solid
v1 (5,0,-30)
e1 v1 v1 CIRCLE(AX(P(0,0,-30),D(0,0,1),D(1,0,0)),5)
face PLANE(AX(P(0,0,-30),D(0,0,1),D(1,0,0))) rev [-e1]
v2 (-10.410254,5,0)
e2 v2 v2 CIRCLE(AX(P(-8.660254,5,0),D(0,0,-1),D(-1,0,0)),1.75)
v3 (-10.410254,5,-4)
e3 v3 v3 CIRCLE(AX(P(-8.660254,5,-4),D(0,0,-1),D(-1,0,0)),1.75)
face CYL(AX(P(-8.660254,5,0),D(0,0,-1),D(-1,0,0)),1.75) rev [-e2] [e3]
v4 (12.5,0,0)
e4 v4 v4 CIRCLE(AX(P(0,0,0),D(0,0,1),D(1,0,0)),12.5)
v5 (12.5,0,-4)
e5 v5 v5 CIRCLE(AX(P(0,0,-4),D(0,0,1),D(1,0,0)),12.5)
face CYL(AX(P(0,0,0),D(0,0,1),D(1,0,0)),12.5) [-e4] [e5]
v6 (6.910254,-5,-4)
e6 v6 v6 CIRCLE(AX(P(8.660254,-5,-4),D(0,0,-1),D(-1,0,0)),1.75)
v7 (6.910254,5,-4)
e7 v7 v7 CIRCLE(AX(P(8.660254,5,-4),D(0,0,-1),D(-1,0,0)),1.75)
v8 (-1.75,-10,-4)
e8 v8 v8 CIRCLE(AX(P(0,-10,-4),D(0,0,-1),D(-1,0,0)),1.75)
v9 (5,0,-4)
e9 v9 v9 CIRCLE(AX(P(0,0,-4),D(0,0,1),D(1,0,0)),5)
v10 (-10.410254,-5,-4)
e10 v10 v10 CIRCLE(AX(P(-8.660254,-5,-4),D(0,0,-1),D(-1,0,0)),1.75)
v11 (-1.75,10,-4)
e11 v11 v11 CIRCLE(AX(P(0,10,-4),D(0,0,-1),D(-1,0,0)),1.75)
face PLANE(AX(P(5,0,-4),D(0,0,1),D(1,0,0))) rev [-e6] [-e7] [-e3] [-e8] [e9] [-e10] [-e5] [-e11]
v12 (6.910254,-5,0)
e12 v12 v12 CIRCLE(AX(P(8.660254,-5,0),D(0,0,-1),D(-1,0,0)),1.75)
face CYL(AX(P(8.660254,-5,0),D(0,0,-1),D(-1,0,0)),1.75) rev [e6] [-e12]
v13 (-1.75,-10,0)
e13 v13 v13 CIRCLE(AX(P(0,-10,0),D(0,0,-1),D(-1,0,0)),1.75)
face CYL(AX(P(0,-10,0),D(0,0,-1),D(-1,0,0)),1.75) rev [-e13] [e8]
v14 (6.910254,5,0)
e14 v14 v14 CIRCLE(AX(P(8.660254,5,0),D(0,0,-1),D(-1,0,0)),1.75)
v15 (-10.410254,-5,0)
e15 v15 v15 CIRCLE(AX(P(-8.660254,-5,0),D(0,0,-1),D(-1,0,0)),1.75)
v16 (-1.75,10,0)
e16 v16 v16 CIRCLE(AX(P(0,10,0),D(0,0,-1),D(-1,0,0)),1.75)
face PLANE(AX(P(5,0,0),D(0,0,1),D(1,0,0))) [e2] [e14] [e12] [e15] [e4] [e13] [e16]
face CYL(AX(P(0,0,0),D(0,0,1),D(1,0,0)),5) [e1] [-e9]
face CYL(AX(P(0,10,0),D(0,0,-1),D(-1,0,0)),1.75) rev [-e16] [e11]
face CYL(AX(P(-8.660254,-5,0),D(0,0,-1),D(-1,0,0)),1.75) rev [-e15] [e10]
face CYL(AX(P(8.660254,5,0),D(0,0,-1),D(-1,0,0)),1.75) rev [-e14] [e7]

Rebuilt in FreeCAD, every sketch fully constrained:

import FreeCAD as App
import Part
import Sketcher
from FreeCAD import Vector
Q = App.Units.Quantity


def add_polygon(sketch, points):
    """Adds a closed chain of lines whose ends are joined by coincident constraints."""
    first, n = sketch.GeometryCount, len(points)
    for a, b in zip(points, points[1:] + points[:1]):
        sketch.addGeometry(Part.LineSegment(App.Vector(*a, 0), App.Vector(*b, 0)), False)
    for i in range(n):
        sketch.addConstraint(Sketcher.Constraint("Coincident", first + i, 2, first + (i + 1) % n, 1))

doc = App.newDocument("Part")
body = doc.addObject("PartDesign::Body", "Body")

sketch1 = body.newObject("Sketcher::SketchObject", "Sketch")
sketch1.AttachmentSupport = (doc.getObject("XZ_Plane"), [""])
sketch1.MapMode = "FlatFace"
add_polygon(sketch1, [(0, -30), (0, 0), (12.5, 0), (12.5, -4), (5, -4), (5, -30)])
sketch1.addConstraint(Sketcher.Constraint("Vertical", 0))
sketch1.addConstraint(Sketcher.Constraint("Horizontal", 1))
sketch1.addConstraint(Sketcher.Constraint("Vertical", 2))
sketch1.addConstraint(Sketcher.Constraint("Horizontal", 3))
sketch1.addConstraint(Sketcher.Constraint("Vertical", 4))
sketch1.addConstraint(Sketcher.Constraint("Horizontal", 5))
sketch1.addConstraint(Sketcher.Constraint("Coincident", 0, 2, -1, 1))
sketch1.addConstraint(Sketcher.Constraint("DistanceX", 5, 2, 5, 1, Q("5 mm")))
sketch1.addConstraint(Sketcher.Constraint("DistanceY", 0, 1, 0, 2, Q("30 mm")))
sketch1.addConstraint(Sketcher.Constraint("DistanceY", 2, 2, 2, 1, Q("4 mm")))
sketch1.addConstraint(Sketcher.Constraint("DistanceX", 1, 1, 1, 2, Q("12.5 mm")))
revolution = body.newObject("PartDesign::Revolution", "Revolution")
revolution.Profile = sketch1
revolution.ReferenceAxis = (sketch1, ["V_Axis"])
revolution.Angle = 360

sketch2 = body.newObject("Sketcher::SketchObject", "Sketch001")
sketch2.AttachmentSupport = (doc.getObject("XY_Plane"), [""])
sketch2.MapMode = "FlatFace"
sketch2.AttachmentOffset = App.Placement(Vector(0, 0, -4), App.Rotation())
sketch2.addGeometry(Part.Circle(Vector(0, 10, 0), Vector(0, 0, 1), 1.8), False)
sketch2.addGeometry(Part.Circle(Vector(-8.7, 5, 0), Vector(0, 0, 1), 1.8), False)
sketch2.addGeometry(Part.Circle(Vector(-8.7, -5, 0), Vector(0, 0, 1), 1.8), False)
sketch2.addGeometry(Part.Circle(Vector(0, -10, 0), Vector(0, 0, 1), 1.8), False)
sketch2.addGeometry(Part.Circle(Vector(8.7, -5, 0), Vector(0, 0, 1), 1.8), False)
sketch2.addGeometry(Part.Circle(Vector(8.7, 5, 0), Vector(0, 0, 1), 1.8), False)
sketch2.addConstraint(Sketcher.Constraint("Equal", 0, 1))
sketch2.addConstraint(Sketcher.Constraint("Equal", 1, 2))
sketch2.addConstraint(Sketcher.Constraint("Equal", 2, 3))
sketch2.addConstraint(Sketcher.Constraint("Equal", 3, 4))
sketch2.addConstraint(Sketcher.Constraint("Equal", 4, 5))
sketch2.addConstraint(Sketcher.Constraint("Symmetric", 0, 3, 3, 3, -1, 1))
sketch2.addConstraint(Sketcher.Constraint("Symmetric", 1, 3, 4, 3, -1, 1))
sketch2.addConstraint(Sketcher.Constraint("Symmetric", 2, 3, 5, 3, -1, 1))
sketch2.addConstraint(Sketcher.Constraint("Symmetric", 2, 3, 4, 3, -2))
sketch2.addConstraint(Sketcher.Constraint("PointOnObject", 0, 3, -2))
sketch2.addConstraint(Sketcher.Constraint("Diameter", 0, Q("3.5 mm")))
sketch2.addConstraint(Sketcher.Constraint("DistanceY", -1, 1, 0, 3, Q("10 mm")))
sketch2.addConstraint(Sketcher.Constraint("DistanceY", -1, 1, 1, 3, Q("5 mm")))
sketch2.addConstraint(Sketcher.Constraint("DistanceX", 2, 3, 4, 3, Q("17.320508 mm")))
pocket1 = body.newObject("PartDesign::Pocket", "Pocket")
pocket1.Profile = sketch2
pocket1.Type = "ThroughAll"
pocket1.Reversed = True

doc.recompute()
